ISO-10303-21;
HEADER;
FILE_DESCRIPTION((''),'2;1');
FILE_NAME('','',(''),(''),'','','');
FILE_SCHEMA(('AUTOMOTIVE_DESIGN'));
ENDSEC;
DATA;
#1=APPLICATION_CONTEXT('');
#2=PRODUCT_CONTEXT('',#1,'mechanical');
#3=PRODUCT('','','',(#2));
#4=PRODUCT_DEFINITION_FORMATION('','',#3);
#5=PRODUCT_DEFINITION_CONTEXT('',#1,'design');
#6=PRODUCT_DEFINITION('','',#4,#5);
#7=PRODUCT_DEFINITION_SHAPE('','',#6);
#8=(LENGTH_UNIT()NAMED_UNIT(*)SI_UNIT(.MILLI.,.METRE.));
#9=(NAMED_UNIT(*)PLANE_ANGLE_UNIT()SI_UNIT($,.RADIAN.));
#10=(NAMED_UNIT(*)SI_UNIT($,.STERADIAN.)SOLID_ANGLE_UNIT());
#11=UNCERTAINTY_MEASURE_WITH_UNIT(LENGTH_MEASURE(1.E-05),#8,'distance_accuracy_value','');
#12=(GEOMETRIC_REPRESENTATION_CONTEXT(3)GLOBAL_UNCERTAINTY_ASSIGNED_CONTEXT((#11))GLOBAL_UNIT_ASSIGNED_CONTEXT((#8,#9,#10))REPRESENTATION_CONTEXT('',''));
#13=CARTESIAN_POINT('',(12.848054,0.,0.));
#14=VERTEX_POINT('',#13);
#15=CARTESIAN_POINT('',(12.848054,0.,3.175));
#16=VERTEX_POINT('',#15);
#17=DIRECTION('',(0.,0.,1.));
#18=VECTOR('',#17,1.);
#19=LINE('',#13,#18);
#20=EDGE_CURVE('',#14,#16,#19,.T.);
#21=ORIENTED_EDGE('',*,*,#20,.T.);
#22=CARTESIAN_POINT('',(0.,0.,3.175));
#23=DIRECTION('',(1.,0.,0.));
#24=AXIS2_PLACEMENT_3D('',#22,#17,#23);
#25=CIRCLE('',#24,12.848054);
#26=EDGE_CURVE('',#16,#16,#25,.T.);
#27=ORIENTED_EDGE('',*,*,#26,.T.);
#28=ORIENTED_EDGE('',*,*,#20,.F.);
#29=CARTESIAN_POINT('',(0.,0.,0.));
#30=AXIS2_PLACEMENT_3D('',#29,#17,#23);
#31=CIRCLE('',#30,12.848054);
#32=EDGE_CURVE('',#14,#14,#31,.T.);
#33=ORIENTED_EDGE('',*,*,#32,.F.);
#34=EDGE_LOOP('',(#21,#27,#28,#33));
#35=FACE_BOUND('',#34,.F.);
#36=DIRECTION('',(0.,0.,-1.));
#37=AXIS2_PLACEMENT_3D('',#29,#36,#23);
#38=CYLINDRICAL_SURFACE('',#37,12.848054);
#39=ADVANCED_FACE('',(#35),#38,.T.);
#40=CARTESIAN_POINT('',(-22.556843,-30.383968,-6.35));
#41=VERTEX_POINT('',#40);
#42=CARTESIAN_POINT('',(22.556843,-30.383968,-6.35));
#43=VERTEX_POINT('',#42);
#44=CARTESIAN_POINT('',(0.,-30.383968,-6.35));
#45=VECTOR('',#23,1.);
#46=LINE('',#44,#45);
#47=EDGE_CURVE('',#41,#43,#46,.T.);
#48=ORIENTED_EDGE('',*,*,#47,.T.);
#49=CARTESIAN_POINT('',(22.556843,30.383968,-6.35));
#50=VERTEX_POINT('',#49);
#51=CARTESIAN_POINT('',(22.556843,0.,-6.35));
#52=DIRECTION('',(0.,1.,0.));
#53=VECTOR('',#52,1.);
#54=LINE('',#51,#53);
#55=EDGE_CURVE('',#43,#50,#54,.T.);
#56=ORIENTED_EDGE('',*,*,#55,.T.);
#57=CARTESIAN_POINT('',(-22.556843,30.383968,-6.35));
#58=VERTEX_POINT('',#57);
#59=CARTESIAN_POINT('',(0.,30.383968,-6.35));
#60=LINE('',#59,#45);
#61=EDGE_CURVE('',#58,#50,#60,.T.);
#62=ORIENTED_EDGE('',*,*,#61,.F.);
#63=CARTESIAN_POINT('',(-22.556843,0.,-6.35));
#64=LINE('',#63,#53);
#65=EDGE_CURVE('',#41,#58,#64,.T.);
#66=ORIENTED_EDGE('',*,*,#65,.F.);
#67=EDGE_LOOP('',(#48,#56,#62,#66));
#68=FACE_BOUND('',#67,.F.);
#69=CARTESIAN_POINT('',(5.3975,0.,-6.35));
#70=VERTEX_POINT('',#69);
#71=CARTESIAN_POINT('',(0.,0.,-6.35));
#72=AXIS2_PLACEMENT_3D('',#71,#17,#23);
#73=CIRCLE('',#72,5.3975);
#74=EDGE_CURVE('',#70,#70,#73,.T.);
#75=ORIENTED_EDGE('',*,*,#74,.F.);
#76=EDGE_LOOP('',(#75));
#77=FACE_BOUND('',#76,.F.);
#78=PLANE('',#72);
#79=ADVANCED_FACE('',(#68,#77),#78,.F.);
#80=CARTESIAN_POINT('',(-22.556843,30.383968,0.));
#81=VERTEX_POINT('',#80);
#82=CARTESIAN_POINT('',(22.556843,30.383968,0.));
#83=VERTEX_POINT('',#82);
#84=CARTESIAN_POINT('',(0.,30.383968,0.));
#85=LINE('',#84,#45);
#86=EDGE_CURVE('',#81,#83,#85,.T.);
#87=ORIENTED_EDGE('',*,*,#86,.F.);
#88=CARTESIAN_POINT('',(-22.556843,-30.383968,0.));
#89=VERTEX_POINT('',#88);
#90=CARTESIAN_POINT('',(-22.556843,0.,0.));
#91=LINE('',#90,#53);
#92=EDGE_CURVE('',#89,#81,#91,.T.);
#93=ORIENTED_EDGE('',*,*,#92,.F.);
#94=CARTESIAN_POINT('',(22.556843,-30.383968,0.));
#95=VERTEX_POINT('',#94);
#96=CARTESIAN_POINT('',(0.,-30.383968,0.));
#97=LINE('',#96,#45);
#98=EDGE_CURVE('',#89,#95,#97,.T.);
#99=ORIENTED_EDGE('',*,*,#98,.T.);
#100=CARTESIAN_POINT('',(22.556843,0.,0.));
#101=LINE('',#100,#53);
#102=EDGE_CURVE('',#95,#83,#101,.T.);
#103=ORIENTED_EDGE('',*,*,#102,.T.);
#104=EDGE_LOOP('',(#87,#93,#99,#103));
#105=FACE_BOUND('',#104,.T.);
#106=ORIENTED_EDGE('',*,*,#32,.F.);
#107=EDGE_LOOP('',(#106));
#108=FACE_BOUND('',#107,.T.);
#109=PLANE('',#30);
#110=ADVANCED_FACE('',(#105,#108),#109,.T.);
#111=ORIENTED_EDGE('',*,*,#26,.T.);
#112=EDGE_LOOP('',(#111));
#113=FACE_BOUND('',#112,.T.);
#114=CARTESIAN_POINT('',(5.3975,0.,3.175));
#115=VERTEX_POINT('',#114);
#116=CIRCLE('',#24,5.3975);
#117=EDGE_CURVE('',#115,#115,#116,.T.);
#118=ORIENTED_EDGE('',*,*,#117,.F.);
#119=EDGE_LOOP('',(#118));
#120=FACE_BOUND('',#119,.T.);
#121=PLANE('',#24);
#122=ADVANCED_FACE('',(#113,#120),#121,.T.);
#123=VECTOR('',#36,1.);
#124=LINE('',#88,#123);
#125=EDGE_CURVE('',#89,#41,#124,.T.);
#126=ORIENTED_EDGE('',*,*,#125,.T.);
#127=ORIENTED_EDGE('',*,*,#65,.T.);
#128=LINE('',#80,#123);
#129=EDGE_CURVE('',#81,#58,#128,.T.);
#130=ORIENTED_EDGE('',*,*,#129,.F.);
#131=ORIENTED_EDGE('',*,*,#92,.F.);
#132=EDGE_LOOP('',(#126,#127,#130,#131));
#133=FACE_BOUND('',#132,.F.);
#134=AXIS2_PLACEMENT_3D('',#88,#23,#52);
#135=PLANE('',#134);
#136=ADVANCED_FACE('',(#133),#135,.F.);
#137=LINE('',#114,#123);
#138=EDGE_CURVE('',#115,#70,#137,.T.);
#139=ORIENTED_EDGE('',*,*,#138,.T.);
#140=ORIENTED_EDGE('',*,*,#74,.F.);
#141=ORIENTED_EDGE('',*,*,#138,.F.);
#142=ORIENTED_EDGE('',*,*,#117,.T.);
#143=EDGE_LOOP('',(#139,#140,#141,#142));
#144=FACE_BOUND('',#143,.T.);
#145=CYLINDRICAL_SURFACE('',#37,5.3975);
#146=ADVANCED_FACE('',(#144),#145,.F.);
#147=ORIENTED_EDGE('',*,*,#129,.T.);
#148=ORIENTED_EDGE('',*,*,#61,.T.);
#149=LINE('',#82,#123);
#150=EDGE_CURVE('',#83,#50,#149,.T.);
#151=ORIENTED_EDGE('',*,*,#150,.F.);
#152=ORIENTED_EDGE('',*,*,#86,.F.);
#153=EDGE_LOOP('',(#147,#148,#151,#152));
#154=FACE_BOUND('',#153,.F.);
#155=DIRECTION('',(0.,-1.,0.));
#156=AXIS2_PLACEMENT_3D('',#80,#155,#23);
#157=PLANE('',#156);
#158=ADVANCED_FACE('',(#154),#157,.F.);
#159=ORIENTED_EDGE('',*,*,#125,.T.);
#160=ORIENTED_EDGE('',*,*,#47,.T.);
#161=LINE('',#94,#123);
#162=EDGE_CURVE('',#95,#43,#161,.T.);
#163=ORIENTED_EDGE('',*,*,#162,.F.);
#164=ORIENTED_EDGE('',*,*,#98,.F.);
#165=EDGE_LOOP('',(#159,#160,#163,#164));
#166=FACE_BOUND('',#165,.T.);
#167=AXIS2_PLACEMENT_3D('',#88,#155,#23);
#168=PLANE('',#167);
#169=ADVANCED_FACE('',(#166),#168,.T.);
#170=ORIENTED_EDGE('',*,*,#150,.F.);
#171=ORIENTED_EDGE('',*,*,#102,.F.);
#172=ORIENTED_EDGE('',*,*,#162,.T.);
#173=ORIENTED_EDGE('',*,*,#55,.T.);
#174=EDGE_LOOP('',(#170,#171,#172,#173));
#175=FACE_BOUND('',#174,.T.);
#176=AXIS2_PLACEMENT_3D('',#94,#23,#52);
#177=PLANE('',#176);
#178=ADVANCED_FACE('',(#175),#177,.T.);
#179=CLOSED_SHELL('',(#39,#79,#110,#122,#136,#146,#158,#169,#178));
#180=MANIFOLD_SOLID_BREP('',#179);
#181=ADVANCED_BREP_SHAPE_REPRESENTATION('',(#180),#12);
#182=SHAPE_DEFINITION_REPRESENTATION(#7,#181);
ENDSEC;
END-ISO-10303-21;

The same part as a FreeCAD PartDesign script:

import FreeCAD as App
import Part
import Sketcher
from FreeCAD import Vector
Q = App.Units.Quantity


def add_polygon(sketch, points):
    """Adds a closed chain of lines whose ends are joined by coincident constraints."""
    first, n = sketch.GeometryCount, len(points)
    for a, b in zip(points, points[1:] + points[:1]):
        sketch.addGeometry(Part.LineSegment(App.Vector(*a, 0), App.Vector(*b, 0)), False)
    for i in range(n):
        sketch.addConstraint(Sketcher.Constraint("Coincident", first + i, 2, first + (i + 1) % n, 1))

doc = App.newDocument("Part")
body = doc.addObject("PartDesign::Body", "Body")

# Sketch on XY plane
sketch1 = body.newObject("Sketcher::SketchObject", "Sketch")
sketch1.AttachmentSupport = (doc.getObject("XY_Plane"), [""])
sketch1.MapMode = "FlatFace"
add_polygon(sketch1, [(-23, 30), (-23, -30), (23, -30), (23, 30)])  # lines 0-3
sketch1.addGeometry(Part.Circle(Vector(0, 0, 0), Vector(0, 0, 1), 5), False)  # 4
sketch1.addConstraint([
    Sketcher.Constraint("Vertical", 0),
    Sketcher.Constraint("Horizontal", 1),
    Sketcher.Constraint("Vertical", 2),
    Sketcher.Constraint("Horizontal", 3),
    Sketcher.Constraint("Coincident", 4, 3, -1, 1),
    Sketcher.Constraint("Symmetric", 0, 2, 2, 2, -1, 1),
    Sketcher.Constraint("Diameter", 4, Q("0.425 in")),
    Sketcher.Constraint("DistanceX", 1, 1, 1, 2, 45.113686),
    Sketcher.Constraint("DistanceY", 0, 2, 0, 1, 60.767936),
])
pad1 = body.newObject("PartDesign::Pad", "Pad")
pad1.Profile = sketch1
pad1.Length = Q("0.25 in")
pad1.Reversed = True

# Sketch on XY plane
sketch2 = body.newObject("Sketcher::SketchObject", "Sketch001")
sketch2.AttachmentSupport = (doc.getObject("XY_Plane"), [""])
sketch2.MapMode = "FlatFace"
sketch2.addGeometry([
    Part.Circle(Vector(0, 0, 0), Vector(0, 0, 1), 13),
    Part.Circle(Vector(0, 0, 0), Vector(0, 0, 1), 5),
], False)
sketch2.addConstraint([
    Sketcher.Constraint("Coincident", 0, 3, -1, 1),
    Sketcher.Constraint("Coincident", 1, 3, -1, 1),
    Sketcher.Constraint("Diameter", 1, Q("0.425 in")),
    Sketcher.Constraint("Diameter", 0, 25.696108),
])
pad2 = body.newObject("PartDesign::Pad", "Pad001")
pad2.Profile = sketch2
pad2.Length = Q("0.125 in")

doc.recompute()
